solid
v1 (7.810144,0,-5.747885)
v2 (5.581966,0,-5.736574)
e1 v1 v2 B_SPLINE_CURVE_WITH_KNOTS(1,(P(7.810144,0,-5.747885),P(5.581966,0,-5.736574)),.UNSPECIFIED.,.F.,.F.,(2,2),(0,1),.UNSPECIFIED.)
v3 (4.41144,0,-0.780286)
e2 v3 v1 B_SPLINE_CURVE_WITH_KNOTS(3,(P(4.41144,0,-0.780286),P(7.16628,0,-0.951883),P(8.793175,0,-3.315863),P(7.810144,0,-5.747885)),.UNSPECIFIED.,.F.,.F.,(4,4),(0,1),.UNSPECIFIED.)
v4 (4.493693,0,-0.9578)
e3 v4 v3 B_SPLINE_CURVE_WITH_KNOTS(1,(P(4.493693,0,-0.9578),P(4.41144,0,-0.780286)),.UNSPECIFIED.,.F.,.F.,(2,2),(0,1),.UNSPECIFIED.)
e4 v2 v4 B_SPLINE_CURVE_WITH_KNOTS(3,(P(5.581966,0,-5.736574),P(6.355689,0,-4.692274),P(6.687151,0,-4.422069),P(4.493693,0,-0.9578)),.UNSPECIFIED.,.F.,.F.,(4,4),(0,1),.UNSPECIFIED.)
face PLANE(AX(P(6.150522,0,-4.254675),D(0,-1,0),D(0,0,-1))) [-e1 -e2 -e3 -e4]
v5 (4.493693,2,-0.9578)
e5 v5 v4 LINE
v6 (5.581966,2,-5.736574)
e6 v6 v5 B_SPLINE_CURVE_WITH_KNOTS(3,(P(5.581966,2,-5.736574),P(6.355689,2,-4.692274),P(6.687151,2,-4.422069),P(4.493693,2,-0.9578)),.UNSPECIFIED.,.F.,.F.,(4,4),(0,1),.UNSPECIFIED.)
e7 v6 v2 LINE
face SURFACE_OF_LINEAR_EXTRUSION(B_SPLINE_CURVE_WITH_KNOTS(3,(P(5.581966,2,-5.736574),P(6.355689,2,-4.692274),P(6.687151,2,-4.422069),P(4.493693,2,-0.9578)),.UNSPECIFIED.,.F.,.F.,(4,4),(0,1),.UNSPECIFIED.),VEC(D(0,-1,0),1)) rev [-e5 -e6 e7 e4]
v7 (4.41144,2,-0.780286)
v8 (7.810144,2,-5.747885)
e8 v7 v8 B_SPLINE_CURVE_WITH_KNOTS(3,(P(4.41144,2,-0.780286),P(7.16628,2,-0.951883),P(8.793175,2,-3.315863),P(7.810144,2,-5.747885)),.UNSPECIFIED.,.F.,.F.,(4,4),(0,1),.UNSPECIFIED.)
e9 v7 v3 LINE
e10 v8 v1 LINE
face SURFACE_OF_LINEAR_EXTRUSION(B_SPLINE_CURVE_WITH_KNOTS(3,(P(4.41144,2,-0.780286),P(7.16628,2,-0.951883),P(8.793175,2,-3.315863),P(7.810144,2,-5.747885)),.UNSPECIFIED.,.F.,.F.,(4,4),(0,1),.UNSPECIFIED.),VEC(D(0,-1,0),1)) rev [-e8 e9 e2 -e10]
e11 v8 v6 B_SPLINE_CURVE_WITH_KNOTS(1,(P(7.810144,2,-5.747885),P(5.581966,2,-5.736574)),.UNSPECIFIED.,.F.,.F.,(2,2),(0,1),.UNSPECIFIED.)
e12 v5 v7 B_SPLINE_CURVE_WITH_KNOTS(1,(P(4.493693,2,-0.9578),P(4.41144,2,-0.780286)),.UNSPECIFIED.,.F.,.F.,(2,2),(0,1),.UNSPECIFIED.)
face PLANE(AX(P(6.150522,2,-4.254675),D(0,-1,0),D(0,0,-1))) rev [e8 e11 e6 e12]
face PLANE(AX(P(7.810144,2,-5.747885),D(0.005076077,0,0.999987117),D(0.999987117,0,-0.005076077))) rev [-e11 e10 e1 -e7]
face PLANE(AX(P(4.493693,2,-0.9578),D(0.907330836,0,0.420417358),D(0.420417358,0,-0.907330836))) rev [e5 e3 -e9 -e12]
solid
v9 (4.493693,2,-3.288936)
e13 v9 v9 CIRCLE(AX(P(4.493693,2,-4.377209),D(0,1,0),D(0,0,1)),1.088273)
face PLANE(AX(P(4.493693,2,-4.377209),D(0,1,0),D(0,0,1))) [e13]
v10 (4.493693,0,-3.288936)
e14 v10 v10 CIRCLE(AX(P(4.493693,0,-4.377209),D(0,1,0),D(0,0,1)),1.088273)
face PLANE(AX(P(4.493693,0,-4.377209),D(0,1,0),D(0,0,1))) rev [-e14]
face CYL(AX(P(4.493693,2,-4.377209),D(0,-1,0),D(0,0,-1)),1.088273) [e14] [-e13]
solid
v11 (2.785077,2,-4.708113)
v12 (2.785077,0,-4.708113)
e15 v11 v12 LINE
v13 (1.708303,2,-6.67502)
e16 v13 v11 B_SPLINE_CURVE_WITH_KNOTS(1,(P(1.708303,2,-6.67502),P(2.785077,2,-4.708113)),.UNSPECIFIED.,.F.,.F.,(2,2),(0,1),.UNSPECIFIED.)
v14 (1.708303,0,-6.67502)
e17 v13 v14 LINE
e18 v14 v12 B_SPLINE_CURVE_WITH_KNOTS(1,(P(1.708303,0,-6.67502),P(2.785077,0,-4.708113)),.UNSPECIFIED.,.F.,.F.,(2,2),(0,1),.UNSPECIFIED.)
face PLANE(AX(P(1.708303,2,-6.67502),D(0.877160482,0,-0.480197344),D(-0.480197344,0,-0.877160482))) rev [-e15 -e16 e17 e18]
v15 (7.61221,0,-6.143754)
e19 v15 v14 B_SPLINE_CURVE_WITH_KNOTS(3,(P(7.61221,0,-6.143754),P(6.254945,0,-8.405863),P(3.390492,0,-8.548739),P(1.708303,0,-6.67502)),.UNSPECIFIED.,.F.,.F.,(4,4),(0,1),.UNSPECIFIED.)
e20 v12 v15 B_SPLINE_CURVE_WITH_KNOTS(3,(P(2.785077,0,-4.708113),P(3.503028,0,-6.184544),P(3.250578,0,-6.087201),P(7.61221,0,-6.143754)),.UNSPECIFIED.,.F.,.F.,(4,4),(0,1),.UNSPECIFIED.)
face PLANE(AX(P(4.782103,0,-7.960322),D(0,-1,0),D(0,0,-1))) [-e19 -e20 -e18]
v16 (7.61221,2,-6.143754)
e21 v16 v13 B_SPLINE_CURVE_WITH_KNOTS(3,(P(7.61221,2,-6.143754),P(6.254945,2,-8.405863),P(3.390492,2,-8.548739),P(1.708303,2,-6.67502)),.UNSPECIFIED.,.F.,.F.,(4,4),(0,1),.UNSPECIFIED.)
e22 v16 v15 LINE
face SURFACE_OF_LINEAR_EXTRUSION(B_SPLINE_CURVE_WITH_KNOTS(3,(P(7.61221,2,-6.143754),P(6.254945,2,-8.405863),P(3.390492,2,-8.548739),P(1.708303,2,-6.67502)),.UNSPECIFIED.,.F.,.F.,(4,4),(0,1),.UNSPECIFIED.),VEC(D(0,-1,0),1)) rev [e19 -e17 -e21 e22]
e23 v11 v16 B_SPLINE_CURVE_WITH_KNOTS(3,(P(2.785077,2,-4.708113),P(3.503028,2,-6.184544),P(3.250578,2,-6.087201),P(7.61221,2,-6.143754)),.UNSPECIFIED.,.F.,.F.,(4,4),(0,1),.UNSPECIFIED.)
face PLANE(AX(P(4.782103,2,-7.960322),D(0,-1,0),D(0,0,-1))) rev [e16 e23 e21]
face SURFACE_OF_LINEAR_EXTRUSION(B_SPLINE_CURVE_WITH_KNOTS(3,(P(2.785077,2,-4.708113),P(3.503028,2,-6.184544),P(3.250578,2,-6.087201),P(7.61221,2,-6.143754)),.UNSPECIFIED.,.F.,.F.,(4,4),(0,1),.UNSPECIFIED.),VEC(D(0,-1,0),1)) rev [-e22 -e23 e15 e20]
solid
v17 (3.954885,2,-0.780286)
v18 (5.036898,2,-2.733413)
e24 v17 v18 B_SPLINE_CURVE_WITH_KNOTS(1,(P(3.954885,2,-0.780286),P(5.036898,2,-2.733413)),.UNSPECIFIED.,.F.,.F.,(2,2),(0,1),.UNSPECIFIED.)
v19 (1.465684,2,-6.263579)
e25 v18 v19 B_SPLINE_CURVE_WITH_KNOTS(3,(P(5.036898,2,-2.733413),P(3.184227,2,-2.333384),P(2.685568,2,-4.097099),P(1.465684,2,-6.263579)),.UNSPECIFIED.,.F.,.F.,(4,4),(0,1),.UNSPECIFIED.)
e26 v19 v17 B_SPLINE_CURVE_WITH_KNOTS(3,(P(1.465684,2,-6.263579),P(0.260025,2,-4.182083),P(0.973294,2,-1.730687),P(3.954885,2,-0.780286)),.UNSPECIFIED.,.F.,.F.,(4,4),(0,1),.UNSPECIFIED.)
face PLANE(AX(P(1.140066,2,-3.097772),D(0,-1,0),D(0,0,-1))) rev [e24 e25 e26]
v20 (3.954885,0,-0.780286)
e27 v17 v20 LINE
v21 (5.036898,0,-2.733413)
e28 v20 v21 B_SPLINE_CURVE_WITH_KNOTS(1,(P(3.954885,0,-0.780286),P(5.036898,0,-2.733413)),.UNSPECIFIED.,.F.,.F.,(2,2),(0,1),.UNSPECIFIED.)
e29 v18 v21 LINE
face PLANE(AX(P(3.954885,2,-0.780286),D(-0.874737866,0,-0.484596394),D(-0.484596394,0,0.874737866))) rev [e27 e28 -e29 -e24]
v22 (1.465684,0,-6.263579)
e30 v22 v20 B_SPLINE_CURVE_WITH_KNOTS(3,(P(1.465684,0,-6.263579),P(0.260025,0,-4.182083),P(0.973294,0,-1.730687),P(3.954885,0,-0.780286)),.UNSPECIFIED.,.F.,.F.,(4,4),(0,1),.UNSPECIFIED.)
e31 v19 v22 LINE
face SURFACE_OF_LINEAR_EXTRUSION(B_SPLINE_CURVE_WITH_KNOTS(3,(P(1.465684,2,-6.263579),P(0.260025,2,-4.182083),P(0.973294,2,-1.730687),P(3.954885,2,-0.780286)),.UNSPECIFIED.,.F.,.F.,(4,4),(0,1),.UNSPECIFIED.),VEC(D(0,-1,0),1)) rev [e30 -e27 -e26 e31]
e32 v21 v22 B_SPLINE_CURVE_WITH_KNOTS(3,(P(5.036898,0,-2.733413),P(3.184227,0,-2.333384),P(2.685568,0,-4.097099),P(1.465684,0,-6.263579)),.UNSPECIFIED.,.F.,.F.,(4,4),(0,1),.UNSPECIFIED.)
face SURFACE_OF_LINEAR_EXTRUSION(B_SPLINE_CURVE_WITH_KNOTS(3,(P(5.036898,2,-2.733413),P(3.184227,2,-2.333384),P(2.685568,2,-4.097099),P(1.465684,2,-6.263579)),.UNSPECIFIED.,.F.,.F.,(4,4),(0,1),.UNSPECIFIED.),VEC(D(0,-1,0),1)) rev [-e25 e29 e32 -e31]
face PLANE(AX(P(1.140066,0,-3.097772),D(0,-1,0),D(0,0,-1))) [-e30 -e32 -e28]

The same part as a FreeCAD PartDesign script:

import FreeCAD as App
import Part
import Sketcher

doc = App.newDocument("Part")
body = doc.addObject("PartDesign::Body", "Body")

sketch1 = doc.addObject("Sketcher::SketchObject", "Sketch")
body.addObject(sketch1)
sketch1.AttachmentSupport = (doc.XZ_Plane, [""])
sketch1.MapMode = "FlatFace"
sketch1.addGeometry(Part.Circle(App.Vector(4.493693, -4.377209, 0), App.Vector(0, 0, 1), 1.088273), False)
sketch1.addConstraint([
    Sketcher.Constraint("Diameter", 0, 2.176546),
    Sketcher.Constraint("DistanceY", 0, 3, -1, 1, 4.377209),
    Sketcher.Constraint("DistanceX", -1, 1, 0, 3, 4.493693),
])
pad1 = doc.addObject("PartDesign::Pad", "Pad")
body.addObject(pad1)
pad1.Profile = sketch1
pad1.Length = 2
pad1.Reversed = True
body2 = doc.addObject("PartDesign::Body", "Body001")

sketch2 = doc.addObject("Sketcher::SketchObject", "Sketch001")
body2.addObject(sketch2)
sketch2.AttachmentSupport = (doc.getObject("XZ_Plane001"), [""])
sketch2.MapMode = "FlatFace"
sketch2.addGeometry([
    Part.BSplineCurve([App.Vector(1.708303, -6.67502, 0), App.Vector(2.785077, -4.708113, 0)], [2, 2], [0, 1], False, 1, [1, 1], False),
    Part.BSplineCurve([App.Vector(2.785077, -4.708113, 0), App.Vector(3.503028, -6.184544, 0), App.Vector(3.250578, -6.087201, 0), App.Vector(7.61221, -6.143754, 0)], [4, 4], [0, 1], False, 3, [1, 1, 1, 1], False),
    Part.BSplineCurve([App.Vector(7.61221, -6.143754, 0), App.Vector(6.254945, -8.405863, 0), App.Vector(3.390492, -8.548739, 0), App.Vector(1.708303, -6.67502, 0)], [4, 4], [0, 1], False, 3, [1, 1, 1, 1], False),
], False)
sketch2.addConstraint([
    Sketcher.Constraint("Block", 0),
    Sketcher.Constraint("Block", 1),
    Sketcher.Constraint("Block", 2),
])
pad2 = doc.addObject("PartDesign::Pad", "Pad001")
body2.addObject(pad2)
pad2.Profile = sketch2
pad2.Length = 2
pad2.Reversed = True
body3 = doc.addObject("PartDesign::Body", "Body002")

sketch3 = doc.addObject("Sketcher::SketchObject", "Sketch002")
body3.addObject(sketch3)
sketch3.AttachmentSupport = (doc.getObject("XZ_Plane002"), [""])
sketch3.MapMode = "FlatFace"
sketch3.addGeometry([
    Part.BSplineCurve([App.Vector(5.581966, -5.736574, 0), App.Vector(7.810144, -5.747885, 0)], [2, 2], [0, 1], False, 1, [1, 1], False),
    Part.BSplineCurve([App.Vector(5.581966, -5.736574, 0), App.Vector(6.355689, -4.692274, 0), App.Vector(6.687151, -4.422069, 0), App.Vector(4.493693, -0.9578, 0)], [4, 4], [0, 1], False, 3, [1, 1, 1, 1], False),
    Part.BSplineCurve([App.Vector(4.493693, -0.9578, 0), App.Vector(4.41144, -0.780286, 0)], [2, 2], [0, 1], False, 1, [1, 1], False),
    Part.BSplineCurve([App.Vector(7.810144, -5.747885, 0), App.Vector(8.793175, -3.315863, 0), App.Vector(7.16628, -0.951883, 0), App.Vector(4.41144, -0.780286, 0)], [4, 4], [0, 1], False, 3, [1, 1, 1, 1], False),
], False)
sketch3.addConstraint([
    Sketcher.Constraint("Block", 0),
    Sketcher.Constraint("Block", 1),
    Sketcher.Constraint("Block", 2),
    Sketcher.Constraint("Block", 3),
])
pad3 = doc.addObject("PartDesign::Pad", "Pad002")
body3.addObject(pad3)
pad3.Profile = sketch3
pad3.Length = 2
pad3.Reversed = True
body4 = doc.addObject("PartDesign::Body", "Body003")

sketch4 = doc.addObject("Sketcher::SketchObject", "Sketch003")
body4.addObject(sketch4)
sketch4.AttachmentSupport = (doc.getObject("XZ_Plane003"), [""])
sketch4.MapMode = "FlatFace"
sketch4.addGeometry([
    Part.BSplineCurve([App.Vector(1.465684, -6.263579, 0), App.Vector(2.685568, -4.097099, 0), App.Vector(3.184227, -2.333384, 0), App.Vector(5.036898, -2.733413, 0)], [4, 4], [0, 1], False, 3, [1, 1, 1, 1], False),
    Part.BSplineCurve([App.Vector(1.465684, -6.263579, 0), App.Vector(0.260025, -4.182083, 0), App.Vector(0.973294, -1.730687, 0), App.Vector(3.954885, -0.780286, 0)], [4, 4], [0, 1], False, 3, [1, 1, 1, 1], False),
    Part.BSplineCurve([App.Vector(3.954885, -0.780286, 0), App.Vector(5.036898, -2.733413, 0)], [2, 2], [0, 1], False, 1, [1, 1], False),
], False)
sketch4.addConstraint([
    Sketcher.Constraint("Block", 0),
    Sketcher.Constraint("Block", 1),
    Sketcher.Constraint("Block", 2),
])
pad4 = doc.addObject("PartDesign::Pad", "Pad003")
body4.addObject(pad4)
pad4.Profile = sketch4
pad4.Length = 2
pad4.Reversed = True

doc.recompute()
